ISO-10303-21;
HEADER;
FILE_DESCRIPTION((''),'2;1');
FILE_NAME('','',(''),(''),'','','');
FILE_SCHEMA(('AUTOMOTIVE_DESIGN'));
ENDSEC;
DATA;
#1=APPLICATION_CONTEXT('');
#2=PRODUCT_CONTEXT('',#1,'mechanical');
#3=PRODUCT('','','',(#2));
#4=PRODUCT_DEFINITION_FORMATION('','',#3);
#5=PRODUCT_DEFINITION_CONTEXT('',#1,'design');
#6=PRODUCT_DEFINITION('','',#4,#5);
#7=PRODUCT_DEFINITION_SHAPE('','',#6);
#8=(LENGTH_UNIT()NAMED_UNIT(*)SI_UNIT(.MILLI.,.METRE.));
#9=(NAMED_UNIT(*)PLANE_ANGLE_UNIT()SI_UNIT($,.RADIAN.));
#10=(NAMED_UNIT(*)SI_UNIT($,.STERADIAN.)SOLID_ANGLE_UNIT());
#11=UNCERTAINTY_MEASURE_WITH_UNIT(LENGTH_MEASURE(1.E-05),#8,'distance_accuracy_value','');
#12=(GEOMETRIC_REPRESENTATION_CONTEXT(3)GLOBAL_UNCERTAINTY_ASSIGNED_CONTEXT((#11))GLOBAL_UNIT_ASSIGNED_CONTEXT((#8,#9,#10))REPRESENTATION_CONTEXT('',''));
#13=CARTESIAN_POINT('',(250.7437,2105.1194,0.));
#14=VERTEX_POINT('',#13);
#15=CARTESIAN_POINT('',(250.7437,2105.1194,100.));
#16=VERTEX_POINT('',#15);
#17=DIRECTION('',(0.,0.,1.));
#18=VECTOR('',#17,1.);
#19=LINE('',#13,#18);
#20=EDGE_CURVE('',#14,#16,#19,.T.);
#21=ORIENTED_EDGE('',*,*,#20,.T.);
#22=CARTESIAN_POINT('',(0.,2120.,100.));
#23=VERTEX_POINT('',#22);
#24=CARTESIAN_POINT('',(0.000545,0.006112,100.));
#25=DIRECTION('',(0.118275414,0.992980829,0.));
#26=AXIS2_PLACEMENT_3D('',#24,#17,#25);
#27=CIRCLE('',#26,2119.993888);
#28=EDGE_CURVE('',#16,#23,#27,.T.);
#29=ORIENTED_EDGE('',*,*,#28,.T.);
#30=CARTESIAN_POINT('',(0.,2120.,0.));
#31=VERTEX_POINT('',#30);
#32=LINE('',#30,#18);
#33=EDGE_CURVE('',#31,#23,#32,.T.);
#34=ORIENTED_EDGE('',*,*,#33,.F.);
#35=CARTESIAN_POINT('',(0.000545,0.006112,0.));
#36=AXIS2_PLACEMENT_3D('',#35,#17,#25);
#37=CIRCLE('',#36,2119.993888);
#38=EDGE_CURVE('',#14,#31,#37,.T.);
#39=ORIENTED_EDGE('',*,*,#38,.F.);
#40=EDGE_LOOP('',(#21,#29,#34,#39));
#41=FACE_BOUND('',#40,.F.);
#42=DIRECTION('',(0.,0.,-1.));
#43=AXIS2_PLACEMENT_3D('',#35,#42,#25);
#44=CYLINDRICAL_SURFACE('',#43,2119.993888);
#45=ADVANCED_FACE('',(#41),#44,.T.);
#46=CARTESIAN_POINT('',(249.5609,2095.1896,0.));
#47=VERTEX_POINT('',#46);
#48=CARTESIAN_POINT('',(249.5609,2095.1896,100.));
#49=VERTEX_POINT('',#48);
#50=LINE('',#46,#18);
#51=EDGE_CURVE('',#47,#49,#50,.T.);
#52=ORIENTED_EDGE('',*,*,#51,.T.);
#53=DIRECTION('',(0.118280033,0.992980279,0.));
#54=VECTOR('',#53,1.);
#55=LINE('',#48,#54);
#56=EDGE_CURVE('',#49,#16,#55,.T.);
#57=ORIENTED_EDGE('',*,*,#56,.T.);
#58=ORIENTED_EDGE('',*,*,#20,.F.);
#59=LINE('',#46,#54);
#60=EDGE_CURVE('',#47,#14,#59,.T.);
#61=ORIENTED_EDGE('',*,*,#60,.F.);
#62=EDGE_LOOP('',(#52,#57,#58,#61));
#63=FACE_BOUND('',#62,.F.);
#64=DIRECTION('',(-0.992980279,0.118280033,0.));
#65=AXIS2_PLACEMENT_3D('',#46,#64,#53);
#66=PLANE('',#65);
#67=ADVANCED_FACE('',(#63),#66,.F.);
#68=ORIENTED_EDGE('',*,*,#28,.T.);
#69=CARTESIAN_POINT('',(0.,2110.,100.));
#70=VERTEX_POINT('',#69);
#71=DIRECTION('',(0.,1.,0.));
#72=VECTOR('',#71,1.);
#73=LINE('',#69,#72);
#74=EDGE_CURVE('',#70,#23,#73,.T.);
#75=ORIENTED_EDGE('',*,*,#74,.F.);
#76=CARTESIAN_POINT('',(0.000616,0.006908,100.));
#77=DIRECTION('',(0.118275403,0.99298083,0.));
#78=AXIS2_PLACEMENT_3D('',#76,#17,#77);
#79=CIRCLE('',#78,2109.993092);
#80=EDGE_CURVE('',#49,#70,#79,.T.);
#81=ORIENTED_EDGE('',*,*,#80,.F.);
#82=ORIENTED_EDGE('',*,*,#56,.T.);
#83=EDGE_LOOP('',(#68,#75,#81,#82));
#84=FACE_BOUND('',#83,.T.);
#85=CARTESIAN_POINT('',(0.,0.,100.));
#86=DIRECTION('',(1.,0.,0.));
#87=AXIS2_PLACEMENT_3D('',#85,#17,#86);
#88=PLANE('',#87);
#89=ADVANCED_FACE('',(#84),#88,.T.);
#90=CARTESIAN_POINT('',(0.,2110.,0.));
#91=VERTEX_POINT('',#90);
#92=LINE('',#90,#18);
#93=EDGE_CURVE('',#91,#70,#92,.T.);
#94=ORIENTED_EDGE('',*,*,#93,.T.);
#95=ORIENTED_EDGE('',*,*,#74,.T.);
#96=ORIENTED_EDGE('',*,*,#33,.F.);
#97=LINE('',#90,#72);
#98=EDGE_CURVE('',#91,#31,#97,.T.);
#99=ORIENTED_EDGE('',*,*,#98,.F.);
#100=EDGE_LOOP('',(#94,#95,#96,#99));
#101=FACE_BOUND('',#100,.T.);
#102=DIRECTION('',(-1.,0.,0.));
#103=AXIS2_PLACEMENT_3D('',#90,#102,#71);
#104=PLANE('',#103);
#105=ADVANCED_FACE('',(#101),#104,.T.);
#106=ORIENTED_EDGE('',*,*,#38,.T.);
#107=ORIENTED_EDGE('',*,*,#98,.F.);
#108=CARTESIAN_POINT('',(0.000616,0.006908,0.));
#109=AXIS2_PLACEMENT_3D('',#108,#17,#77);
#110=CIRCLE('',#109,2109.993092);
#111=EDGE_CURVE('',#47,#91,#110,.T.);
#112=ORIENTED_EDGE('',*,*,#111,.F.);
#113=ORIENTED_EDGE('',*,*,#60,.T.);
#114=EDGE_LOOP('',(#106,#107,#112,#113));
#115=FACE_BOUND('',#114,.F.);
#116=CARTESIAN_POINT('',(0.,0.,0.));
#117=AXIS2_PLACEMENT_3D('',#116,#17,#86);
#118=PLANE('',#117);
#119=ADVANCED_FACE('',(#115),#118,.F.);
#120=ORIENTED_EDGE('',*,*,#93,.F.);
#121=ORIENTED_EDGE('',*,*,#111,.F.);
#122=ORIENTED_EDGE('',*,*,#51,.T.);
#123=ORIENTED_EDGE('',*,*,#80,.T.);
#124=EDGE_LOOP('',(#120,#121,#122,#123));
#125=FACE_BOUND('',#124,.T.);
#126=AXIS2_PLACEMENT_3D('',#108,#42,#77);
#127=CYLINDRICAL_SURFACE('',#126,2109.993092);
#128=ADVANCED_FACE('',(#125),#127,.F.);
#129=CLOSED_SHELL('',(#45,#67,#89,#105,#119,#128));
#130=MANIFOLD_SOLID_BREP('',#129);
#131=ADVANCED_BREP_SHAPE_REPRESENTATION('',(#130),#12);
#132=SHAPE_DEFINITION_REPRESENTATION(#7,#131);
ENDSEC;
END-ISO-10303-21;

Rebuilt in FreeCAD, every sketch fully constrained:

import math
import FreeCAD as App
import Part
import Sketcher
from FreeCAD import Vector
Q = App.Units.Quantity

doc = App.newDocument("Part")
body = doc.addObject("PartDesign::Body", "Body")

# Sketch on XY plane
sketch1 = body.newObject("Sketcher::SketchObject", "Sketch")
sketch1.AttachmentSupport = (doc.getObject("XY_Plane"), [""])
sketch1.MapMode = "FlatFace"
sketch1.addGeometry([
    Part.LineSegment(Vector(250, 2095, 0), Vector(251, 2105, 0)),
    Part.ArcOfCircle(Part.Circle(Vector(0, 0, 0), Vector(0, 0, 1), 2120), math.radians(83.21), math.radians(90)),
    Part.LineSegment(Vector(0, 2120, 0), Vector(0, 2110, 0)),
    Part.ArcOfCircle(Part.Circle(Vector(0, 0, 0), Vector(0, 0, 1), 2110), math.radians(83.21), math.radians(90)),
], False)
sketch1.addConstraint([
    Sketcher.Constraint("Coincident", 0, 2, 1, 1),
    Sketcher.Constraint("Coincident", 1, 2, 2, 1),
    Sketcher.Constraint("Coincident", 2, 2, 3, 2),
    Sketcher.Constraint("Coincident", 3, 1, 0, 1),
    Sketcher.Constraint("Vertical", 2),
    Sketcher.Constraint("PointOnObject", 2, 2, -2),
    Sketcher.Constraint("Vertical", 1, 3, 3, 3),
    Sketcher.Constraint("DistanceY", 2, 2, 2, 1, Q("0.3937 in")),
    Sketcher.Constraint("Distance", 0, Q("0.3937 in")),
    Sketcher.Constraint("Radius", 3, Q("83.0706 in")),
    Sketcher.Constraint("DistanceX", -1, 1, 0, 2, Q("9.8718 in")),
    Sketcher.Constraint("DistanceX", -1, 1, 1, 3, 0.0005),
    Sketcher.Constraint("DistanceY", -1, 1, 1, 3, 0.006),
    Sketcher.Constraint("Angle", 0, Q("83.2072 deg")),
])
pad1 = body.newObject("PartDesign::Pad", "Pad")
pad1.Profile = sketch1
pad1.Length = Q("3.9370079 in")

doc.recompute()
